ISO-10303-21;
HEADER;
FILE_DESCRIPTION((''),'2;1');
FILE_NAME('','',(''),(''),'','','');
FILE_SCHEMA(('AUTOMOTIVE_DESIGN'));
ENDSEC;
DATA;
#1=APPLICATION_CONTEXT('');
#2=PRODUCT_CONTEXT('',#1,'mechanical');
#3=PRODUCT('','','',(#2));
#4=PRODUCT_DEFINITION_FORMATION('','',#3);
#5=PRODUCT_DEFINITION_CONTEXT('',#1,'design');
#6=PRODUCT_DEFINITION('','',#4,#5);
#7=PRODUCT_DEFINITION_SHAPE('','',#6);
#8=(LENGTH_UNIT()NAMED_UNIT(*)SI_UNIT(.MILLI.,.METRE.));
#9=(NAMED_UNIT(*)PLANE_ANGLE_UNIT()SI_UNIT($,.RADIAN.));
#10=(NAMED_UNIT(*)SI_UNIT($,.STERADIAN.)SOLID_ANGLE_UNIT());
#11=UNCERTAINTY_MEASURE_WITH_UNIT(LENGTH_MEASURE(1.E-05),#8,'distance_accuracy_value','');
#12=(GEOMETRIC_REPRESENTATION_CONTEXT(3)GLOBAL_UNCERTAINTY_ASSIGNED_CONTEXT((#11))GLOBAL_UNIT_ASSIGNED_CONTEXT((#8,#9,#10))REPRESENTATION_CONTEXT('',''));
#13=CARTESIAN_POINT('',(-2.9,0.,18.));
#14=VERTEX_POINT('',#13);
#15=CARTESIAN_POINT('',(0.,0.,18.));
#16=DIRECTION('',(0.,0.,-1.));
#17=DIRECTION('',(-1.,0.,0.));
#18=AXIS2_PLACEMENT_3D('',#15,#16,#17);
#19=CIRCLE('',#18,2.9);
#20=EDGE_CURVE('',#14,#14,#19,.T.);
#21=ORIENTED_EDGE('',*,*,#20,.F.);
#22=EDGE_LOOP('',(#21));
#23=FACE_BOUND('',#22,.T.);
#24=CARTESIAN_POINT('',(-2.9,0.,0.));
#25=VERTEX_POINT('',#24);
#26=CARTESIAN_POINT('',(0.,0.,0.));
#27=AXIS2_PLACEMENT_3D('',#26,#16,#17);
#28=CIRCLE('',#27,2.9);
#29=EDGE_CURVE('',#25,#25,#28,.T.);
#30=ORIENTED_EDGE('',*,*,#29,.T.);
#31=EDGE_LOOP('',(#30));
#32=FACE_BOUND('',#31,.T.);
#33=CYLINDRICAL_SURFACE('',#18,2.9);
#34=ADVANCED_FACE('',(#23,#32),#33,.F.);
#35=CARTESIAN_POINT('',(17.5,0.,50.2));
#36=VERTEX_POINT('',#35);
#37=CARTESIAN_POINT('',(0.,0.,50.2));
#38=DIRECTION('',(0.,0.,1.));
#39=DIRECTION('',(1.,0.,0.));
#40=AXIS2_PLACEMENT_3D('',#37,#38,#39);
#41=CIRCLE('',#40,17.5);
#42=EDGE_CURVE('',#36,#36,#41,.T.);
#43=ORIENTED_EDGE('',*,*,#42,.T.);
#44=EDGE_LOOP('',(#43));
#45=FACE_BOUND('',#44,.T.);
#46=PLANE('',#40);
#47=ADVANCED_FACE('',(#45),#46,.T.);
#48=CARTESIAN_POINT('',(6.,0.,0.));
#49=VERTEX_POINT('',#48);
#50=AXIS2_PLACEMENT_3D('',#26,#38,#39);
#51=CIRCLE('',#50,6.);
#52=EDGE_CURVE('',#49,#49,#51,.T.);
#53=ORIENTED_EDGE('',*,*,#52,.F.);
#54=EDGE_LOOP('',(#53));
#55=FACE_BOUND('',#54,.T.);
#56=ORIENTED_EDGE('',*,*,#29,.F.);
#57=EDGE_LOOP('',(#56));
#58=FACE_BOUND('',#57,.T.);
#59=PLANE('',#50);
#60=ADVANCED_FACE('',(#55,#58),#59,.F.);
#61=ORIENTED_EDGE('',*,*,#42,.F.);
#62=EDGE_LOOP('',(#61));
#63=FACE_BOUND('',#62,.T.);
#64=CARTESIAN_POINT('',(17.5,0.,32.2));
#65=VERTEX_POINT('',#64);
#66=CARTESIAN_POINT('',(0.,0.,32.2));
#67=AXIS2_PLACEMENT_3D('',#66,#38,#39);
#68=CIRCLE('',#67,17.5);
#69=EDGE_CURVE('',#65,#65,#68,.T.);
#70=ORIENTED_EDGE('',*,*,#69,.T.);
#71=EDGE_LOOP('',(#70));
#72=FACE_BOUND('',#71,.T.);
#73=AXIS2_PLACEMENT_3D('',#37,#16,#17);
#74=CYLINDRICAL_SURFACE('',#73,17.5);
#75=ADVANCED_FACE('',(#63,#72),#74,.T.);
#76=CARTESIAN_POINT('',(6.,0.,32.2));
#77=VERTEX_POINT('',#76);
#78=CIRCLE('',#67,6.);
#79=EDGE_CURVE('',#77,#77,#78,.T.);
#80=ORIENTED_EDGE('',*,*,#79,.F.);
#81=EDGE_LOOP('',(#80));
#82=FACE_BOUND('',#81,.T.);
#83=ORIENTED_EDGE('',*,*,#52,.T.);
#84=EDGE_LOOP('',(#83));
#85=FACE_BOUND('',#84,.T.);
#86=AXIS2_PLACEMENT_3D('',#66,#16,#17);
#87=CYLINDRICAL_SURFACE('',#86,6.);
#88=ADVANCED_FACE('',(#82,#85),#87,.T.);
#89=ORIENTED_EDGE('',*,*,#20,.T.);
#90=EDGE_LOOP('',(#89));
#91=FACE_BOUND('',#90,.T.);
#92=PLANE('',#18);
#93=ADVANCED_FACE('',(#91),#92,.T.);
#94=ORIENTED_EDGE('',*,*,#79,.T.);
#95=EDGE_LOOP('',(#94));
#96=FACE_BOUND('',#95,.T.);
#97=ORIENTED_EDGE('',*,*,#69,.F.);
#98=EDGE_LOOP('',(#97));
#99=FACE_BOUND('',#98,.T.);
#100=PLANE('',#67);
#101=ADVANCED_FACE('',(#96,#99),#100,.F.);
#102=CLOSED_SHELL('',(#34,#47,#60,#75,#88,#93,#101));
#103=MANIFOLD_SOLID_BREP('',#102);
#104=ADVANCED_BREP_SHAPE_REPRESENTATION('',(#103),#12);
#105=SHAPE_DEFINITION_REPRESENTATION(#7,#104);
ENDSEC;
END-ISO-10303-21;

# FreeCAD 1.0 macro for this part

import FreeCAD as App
import Part
import Sketcher
from FreeCAD import Vector

doc = App.newDocument("Part")
body = doc.addObject("PartDesign::Body", "Body")

# Sketch on XY plane
sketch1 = body.newObject("Sketcher::SketchObject", "Sketch")
sketch1.AttachmentSupport = (doc.getObject("XY_Plane"), [""])
sketch1.MapMode = "FlatFace"
sketch1.addGeometry(Part.Circle(Vector(0, 0, 0), Vector(0, 0, 1), 6), False)
sketch1.addConstraint([
    Sketcher.Constraint("Coincident", 0, 3, -1, 1),
    Sketcher.Constraint("Diameter", 0, 12.0),
])
pad1 = body.newObject("PartDesign::Pad", "Pad")
pad1.Profile = sketch1
pad1.Length = 32.2

# Sketch on XY plane
sketch2 = body.newObject("Sketcher::SketchObject", "Sketch001")
sketch2.AttachmentSupport = (doc.getObject("XY_Plane"), [""])
sketch2.MapMode = "FlatFace"
sketch2.AttachmentOffset = App.Placement(Vector(0, 0, 32.2), App.Rotation())
sketch2.addGeometry(Part.Circle(Vector(0, 0, 0), Vector(0, 0, 1), 18), False)
sketch2.addConstraint([
    Sketcher.Constraint("Coincident", 0, 3, -1, 1),
    Sketcher.Constraint("Diameter", 0, 35.0),
])
pad2 = body.newObject("PartDesign::Pad", "Pad001")
pad2.Profile = sketch2
pad2.Length = 18

# Sketch on XY plane
sketch3 = body.newObject("Sketcher::SketchObject", "Sketch002")
sketch3.AttachmentSupport = (doc.getObject("XY_Plane"), [""])
sketch3.MapMode = "FlatFace"
sketch3.addGeometry(Part.Circle(Vector(0, 0, 0), Vector(0, 0, 1), 2.9), False)
sketch3.addConstraint([
    Sketcher.Constraint("Coincident", 0, 3, -1, 1),
    Sketcher.Constraint("Diameter", 0, 5.8),
])
pocket1 = body.newObject("PartDesign::Pocket", "Pocket")
pocket1.Profile = sketch3
pocket1.Length = 18
pocket1.Reversed = True

doc.recompute()
